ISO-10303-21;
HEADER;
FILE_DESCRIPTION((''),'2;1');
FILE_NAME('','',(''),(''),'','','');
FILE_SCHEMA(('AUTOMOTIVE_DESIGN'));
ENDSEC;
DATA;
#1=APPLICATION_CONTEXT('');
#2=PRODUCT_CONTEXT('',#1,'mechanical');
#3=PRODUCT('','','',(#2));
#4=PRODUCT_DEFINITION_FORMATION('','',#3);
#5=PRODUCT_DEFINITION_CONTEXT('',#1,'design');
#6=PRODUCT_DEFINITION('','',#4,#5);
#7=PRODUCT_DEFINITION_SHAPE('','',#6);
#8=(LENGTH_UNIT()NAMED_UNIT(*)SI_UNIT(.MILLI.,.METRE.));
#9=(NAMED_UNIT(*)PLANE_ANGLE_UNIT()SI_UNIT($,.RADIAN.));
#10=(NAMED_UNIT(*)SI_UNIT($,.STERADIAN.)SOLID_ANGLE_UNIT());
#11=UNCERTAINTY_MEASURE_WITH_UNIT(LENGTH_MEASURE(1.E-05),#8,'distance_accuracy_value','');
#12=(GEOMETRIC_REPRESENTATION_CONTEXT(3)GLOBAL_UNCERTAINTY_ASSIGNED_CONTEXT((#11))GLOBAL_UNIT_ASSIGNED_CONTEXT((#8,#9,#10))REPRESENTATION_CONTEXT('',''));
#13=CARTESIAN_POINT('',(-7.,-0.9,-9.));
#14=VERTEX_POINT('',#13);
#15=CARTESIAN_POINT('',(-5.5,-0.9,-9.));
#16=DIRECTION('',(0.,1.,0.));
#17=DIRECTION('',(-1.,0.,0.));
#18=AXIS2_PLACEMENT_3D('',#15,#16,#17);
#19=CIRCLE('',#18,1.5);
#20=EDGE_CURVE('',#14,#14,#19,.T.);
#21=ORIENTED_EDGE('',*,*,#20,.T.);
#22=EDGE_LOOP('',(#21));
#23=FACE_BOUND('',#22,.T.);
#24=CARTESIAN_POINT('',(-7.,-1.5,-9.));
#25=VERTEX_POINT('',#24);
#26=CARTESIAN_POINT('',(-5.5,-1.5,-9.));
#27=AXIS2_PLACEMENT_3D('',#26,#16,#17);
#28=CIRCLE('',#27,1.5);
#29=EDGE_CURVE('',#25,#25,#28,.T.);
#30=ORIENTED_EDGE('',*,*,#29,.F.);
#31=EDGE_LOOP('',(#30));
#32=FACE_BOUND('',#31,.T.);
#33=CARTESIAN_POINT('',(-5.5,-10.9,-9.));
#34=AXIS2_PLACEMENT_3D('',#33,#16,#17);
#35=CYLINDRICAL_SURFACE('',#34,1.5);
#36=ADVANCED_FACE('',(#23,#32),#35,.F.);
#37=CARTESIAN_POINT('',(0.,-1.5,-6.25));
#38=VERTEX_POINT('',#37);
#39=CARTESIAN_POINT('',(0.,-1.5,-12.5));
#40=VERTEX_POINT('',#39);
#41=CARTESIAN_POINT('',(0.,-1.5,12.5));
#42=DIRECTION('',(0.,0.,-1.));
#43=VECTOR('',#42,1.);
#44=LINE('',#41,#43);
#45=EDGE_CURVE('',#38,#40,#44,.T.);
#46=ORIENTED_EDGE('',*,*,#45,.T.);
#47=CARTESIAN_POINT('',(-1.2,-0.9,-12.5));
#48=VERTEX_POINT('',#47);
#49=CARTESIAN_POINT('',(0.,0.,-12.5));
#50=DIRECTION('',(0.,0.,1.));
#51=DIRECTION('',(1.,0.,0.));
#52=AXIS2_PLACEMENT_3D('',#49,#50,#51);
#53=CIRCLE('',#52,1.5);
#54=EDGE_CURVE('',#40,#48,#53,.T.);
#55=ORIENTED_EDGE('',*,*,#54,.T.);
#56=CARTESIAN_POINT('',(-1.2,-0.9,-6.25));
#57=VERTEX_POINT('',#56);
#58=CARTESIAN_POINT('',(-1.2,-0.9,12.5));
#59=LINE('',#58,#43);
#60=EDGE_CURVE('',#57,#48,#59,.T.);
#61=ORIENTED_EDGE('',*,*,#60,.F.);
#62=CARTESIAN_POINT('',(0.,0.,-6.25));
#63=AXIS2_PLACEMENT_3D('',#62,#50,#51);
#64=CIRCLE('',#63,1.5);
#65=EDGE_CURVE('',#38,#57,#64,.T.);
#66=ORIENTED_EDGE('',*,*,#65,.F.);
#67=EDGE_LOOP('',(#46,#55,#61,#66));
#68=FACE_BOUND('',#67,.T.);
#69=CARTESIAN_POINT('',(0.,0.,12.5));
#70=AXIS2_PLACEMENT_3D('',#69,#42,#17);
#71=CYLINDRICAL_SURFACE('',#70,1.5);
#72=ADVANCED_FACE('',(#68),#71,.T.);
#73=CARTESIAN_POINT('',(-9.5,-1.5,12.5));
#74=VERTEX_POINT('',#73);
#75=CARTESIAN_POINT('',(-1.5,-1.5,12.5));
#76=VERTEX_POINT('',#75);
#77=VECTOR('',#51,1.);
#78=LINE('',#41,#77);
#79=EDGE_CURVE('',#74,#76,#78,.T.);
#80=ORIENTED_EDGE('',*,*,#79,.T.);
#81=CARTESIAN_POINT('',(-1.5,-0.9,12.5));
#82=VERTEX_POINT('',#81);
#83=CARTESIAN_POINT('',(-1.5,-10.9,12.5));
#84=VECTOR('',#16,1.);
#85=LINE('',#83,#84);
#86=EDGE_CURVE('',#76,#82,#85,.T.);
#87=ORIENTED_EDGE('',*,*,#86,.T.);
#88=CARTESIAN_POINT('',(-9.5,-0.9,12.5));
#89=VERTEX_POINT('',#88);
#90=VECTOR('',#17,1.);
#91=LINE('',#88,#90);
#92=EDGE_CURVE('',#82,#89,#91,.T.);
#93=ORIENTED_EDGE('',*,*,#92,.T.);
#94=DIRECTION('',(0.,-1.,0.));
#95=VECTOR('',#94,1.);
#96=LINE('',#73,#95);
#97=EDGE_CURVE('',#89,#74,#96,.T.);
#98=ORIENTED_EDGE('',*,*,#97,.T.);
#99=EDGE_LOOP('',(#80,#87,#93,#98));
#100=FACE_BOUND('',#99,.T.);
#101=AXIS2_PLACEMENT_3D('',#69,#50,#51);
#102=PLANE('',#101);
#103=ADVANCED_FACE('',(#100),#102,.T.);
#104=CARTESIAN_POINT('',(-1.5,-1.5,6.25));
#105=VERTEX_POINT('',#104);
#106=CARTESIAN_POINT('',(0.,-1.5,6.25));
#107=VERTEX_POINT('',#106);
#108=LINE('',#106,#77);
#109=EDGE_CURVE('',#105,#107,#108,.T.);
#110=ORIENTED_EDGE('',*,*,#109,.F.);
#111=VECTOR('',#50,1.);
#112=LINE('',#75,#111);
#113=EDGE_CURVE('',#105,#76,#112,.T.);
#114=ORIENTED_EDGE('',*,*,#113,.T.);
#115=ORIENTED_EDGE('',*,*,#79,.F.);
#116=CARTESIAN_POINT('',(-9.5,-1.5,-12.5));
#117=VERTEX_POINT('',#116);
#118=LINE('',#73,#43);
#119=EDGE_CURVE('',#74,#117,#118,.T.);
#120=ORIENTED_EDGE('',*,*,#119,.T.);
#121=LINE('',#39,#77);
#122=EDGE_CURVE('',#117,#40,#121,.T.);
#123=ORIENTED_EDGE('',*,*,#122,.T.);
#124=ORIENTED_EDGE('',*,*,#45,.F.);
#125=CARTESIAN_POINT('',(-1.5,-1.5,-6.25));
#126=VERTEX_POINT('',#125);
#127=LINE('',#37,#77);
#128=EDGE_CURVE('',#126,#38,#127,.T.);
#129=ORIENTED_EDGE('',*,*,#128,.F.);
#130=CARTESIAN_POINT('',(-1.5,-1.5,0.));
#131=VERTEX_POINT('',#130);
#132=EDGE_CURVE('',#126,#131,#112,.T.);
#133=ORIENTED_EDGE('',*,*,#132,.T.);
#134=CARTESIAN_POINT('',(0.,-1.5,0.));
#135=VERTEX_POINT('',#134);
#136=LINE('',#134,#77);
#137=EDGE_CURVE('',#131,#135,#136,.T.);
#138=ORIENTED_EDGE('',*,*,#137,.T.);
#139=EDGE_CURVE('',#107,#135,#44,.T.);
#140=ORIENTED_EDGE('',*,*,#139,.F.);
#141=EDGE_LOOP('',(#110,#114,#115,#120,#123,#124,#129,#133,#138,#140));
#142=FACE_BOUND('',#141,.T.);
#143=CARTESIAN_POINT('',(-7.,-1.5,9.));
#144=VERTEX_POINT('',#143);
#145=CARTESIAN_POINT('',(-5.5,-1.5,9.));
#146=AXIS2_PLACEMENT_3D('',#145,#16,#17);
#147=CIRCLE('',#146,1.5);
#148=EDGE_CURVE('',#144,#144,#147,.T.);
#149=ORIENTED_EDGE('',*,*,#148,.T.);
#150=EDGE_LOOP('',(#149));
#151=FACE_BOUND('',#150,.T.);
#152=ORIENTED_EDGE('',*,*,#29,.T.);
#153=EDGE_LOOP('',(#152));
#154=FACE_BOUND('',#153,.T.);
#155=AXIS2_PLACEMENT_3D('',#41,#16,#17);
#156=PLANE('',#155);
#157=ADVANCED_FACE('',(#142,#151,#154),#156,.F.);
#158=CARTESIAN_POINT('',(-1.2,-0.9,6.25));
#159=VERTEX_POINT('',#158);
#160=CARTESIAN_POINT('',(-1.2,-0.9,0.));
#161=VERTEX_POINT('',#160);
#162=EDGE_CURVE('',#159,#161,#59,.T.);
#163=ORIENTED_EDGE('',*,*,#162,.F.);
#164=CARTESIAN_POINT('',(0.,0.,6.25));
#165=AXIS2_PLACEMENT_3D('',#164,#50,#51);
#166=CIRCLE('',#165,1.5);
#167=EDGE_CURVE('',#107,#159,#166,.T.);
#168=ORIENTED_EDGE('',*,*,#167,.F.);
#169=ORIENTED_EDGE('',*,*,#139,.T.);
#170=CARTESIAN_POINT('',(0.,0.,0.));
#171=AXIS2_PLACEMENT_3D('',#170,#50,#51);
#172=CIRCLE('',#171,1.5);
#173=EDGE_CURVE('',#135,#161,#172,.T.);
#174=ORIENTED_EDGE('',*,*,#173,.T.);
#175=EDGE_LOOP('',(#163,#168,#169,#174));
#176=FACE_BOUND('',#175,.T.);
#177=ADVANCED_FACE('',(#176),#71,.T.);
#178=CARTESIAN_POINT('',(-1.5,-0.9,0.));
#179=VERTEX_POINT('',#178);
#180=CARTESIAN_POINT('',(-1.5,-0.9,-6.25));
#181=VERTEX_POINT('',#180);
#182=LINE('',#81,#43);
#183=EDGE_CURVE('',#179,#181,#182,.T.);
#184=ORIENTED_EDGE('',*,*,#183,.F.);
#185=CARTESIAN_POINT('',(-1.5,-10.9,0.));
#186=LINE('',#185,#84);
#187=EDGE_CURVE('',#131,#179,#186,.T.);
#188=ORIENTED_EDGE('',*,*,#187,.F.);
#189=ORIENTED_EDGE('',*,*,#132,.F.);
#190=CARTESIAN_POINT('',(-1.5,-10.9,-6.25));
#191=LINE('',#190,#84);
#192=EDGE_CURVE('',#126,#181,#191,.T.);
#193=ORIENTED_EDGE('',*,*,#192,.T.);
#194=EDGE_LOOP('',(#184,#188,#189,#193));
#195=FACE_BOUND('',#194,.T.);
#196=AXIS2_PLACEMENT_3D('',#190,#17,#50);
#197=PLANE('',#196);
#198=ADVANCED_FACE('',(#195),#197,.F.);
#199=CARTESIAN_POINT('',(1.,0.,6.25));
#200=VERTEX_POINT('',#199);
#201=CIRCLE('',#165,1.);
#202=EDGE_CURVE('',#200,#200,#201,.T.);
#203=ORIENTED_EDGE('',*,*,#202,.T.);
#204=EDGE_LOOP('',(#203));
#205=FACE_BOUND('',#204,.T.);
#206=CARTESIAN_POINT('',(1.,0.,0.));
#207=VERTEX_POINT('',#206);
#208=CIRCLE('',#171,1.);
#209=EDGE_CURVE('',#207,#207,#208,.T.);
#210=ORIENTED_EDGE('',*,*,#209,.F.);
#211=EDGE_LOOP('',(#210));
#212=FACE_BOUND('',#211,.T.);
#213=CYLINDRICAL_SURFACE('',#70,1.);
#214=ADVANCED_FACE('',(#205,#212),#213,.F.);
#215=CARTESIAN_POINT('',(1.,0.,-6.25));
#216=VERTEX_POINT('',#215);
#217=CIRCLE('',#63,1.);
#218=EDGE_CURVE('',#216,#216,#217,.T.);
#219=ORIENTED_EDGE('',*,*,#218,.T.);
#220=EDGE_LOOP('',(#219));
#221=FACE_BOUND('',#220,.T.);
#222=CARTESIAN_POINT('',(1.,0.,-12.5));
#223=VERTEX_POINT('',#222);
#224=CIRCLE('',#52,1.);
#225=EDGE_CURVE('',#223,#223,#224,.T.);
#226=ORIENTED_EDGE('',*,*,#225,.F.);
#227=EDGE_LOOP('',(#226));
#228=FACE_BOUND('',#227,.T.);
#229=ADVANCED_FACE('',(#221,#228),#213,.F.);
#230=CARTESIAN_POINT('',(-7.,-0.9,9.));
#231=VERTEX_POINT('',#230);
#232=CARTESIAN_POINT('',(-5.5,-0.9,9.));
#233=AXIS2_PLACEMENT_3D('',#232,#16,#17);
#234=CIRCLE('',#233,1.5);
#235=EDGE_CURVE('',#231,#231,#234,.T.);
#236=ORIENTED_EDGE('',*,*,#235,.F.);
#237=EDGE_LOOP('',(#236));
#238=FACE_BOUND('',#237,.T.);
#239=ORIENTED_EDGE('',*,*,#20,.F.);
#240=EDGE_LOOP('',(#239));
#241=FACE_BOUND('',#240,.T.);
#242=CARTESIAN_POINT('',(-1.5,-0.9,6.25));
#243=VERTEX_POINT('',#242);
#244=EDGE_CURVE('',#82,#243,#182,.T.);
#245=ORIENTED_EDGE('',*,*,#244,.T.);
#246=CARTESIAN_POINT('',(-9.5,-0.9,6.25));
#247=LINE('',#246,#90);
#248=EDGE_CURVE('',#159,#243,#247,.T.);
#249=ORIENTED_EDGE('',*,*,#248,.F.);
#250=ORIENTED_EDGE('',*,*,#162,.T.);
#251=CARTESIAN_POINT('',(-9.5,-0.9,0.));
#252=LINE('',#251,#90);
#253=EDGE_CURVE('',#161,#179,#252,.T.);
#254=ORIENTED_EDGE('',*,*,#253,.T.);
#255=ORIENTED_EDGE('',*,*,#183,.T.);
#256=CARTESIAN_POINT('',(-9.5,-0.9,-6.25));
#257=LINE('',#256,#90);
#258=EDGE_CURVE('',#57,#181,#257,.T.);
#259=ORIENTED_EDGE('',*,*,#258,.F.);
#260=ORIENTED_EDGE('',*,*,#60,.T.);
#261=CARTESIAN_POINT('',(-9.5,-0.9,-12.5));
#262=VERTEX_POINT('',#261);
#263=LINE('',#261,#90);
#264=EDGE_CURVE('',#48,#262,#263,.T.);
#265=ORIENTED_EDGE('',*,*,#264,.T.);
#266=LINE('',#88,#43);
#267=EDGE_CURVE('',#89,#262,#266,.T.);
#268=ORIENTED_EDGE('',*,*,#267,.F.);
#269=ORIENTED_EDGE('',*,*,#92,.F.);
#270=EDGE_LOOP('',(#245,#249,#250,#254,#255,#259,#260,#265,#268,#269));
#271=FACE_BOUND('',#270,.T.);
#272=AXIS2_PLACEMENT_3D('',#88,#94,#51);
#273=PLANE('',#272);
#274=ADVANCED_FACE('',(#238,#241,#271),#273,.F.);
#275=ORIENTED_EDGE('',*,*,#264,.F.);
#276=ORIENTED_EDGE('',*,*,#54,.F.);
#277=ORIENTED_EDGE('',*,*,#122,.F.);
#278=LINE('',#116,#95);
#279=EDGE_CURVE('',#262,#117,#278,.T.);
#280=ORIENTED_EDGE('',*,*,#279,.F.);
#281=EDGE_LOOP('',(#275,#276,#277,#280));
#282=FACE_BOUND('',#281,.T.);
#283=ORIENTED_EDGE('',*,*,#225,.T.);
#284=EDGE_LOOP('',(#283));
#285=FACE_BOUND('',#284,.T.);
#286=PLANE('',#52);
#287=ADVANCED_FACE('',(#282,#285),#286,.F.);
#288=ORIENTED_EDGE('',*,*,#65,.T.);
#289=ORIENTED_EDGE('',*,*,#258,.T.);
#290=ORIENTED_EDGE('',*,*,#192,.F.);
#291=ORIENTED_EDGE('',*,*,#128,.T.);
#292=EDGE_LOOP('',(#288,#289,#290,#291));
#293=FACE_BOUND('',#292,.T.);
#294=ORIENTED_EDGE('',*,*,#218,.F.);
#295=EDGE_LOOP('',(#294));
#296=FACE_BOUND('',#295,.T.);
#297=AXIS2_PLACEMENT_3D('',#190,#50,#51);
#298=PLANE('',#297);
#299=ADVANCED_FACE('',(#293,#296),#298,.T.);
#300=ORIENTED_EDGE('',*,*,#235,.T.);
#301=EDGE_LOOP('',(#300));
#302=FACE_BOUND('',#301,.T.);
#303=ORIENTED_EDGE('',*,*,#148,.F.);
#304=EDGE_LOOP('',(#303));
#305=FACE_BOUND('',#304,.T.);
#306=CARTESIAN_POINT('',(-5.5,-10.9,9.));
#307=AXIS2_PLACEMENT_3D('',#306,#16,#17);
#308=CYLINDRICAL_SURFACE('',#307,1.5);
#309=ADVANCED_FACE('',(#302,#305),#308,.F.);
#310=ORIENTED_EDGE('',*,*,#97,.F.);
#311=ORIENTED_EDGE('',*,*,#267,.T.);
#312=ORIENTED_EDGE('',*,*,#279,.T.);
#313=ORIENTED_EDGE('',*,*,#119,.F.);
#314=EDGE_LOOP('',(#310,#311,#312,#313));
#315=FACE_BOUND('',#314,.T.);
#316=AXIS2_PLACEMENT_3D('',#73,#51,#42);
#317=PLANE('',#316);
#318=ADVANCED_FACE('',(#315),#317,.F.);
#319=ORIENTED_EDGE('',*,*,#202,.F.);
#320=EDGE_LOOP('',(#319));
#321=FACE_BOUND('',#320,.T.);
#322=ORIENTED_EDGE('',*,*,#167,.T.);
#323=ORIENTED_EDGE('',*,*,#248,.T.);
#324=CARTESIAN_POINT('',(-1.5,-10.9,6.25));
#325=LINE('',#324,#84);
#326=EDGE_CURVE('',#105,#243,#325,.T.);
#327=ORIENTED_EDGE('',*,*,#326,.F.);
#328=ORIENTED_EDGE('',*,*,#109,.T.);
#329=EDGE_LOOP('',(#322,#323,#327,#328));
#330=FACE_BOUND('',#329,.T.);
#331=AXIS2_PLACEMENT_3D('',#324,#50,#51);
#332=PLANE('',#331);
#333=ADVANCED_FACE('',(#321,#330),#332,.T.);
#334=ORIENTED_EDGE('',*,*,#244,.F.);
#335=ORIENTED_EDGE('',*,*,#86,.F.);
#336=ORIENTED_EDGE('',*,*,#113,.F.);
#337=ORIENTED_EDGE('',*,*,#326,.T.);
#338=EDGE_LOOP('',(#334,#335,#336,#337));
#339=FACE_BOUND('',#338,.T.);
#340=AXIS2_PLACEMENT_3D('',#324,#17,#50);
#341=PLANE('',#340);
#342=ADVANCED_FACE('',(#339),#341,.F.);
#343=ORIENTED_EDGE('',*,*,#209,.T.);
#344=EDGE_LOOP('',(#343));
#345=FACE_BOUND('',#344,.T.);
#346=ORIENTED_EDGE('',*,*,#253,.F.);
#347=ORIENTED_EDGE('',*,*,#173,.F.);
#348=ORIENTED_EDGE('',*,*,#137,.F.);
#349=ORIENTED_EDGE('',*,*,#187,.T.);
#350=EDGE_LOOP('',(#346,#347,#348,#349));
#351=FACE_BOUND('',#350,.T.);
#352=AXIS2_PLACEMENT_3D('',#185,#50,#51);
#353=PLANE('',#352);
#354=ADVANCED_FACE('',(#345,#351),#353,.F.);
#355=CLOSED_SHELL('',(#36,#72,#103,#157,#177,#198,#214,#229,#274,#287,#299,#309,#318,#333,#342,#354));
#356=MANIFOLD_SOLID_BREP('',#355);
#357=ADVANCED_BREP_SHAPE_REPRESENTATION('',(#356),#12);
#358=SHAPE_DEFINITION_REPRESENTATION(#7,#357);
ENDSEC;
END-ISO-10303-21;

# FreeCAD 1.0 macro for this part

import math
import FreeCAD as App
import Part
import Sketcher
from FreeCAD import Vector

doc = App.newDocument("Part")
body = doc.addObject("PartDesign::Body", "Body")

# Sketch on XY plane
sketch1 = body.newObject("Sketcher::SketchObject", "Sketch")
sketch1.AttachmentSupport = (doc.getObject("XY_Plane"), [""])
sketch1.MapMode = "FlatFace"
sketch1.addGeometry([
    Part.LineSegment(Vector(-9.5, -1.5, 0), Vector(0, -1.5, 0)),  # 0
    Part.ArcOfCircle(Part.Circle(Vector(0, 0, 0), Vector(0, 0, 1), 1.5), math.radians(-90), math.radians(217)),  # 1
    Part.LineSegment(Vector(-1.2, -0.9, 0), Vector(-9.5, -0.9, 0)),  # 2
    Part.LineSegment(Vector(-9.5, -0.9, 0), Vector(-9.5, -1.5, 0)),  # 3
    Part.Circle(Vector(0, 0, 0), Vector(0, 0, 1), 1),  # 4
], False)
sketch1.addConstraint([
    Sketcher.Constraint("Tangent", 0, 2, 1, 1),
    Sketcher.Constraint("Coincident", 1, 2, 2, 1),
    Sketcher.Constraint("Coincident", 2, 2, 3, 1),
    Sketcher.Constraint("Coincident", 3, 2, 0, 1),
    Sketcher.Constraint("Horizontal", 0),
    Sketcher.Constraint("Horizontal", 2),
    Sketcher.Constraint("Vertical", 3),
    Sketcher.Constraint("Coincident", 1, 3, -1, 1),
    Sketcher.Constraint("Coincident", 4, 3, -1, 1),
    Sketcher.Constraint("Diameter", 4, 2.0),
    Sketcher.Constraint("Radius", 1, 1.5),
    Sketcher.Constraint("DistanceX", 0, 1, 0, 2, 9.5),
    Sketcher.Constraint("DistanceX", 2, 2, 2, 1, 8.3),
])
pad1 = body.newObject("PartDesign::Pad", "Pad")
pad1.Profile = sketch1
pad1.Length = 25
pad1.Midplane = True

# Sketch on XZ plane
sketch2 = body.newObject("Sketcher::SketchObject", "Sketch001")
sketch2.AttachmentSupport = (doc.getObject("XZ_Plane"), [""])
sketch2.MapMode = "FlatFace"
sketch2.AttachmentOffset = App.Placement(Vector(0, 0, 0.9), App.Rotation())
sketch2.addGeometry([
    Part.LineSegment(Vector(-1.5, -6.2, 0), Vector(-1.5, 0, 0)),  # 0
    Part.LineSegment(Vector(-1.5, 0, 0), Vector(2.6, 0, 0)),  # 1
    Part.LineSegment(Vector(2.6, 0, 0), Vector(2.6, -6.2, 0)),  # 2
    Part.LineSegment(Vector(2.6, -6.2, 0), Vector(-1.5, -6.2, 0)),  # 3
    Part.LineSegment(Vector(-1.5, 6.2, 0), Vector(-1.5, 12.5, 0)),  # 4
    Part.LineSegment(Vector(-1.5, 12.5, 0), Vector(3.2, 12.5, 0)),  # 5
    Part.LineSegment(Vector(3.2, 12.5, 0), Vector(3.2, 6.2, 0)),  # 6
    Part.LineSegment(Vector(3.2, 6.2, 0), Vector(-1.5, 6.2, 0)),  # 7
], False)
sketch2.addConstraint([
    Sketcher.Constraint("Coincident", 0, 2, 1, 1),
    Sketcher.Constraint("Coincident", 1, 2, 2, 1),
    Sketcher.Constraint("Coincident", 2, 2, 3, 1),
    Sketcher.Constraint("Coincident", 3, 2, 0, 1),
    Sketcher.Constraint("Coincident", 4, 2, 5, 1),
    Sketcher.Constraint("Coincident", 5, 2, 6, 1),
    Sketcher.Constraint("Coincident", 6, 2, 7, 1),
    Sketcher.Constraint("Coincident", 7, 2, 4, 1),
    Sketcher.Constraint("Vertical", 0),
    Sketcher.Constraint("Horizontal", 1),
    Sketcher.Constraint("Vertical", 2),
    Sketcher.Constraint("Horizontal", 3),
    Sketcher.Constraint("Vertical", 4),
    Sketcher.Constraint("Horizontal", 5),
    Sketcher.Constraint("Vertical", 6),
    Sketcher.Constraint("Horizontal", 7),
    Sketcher.Constraint("Symmetric", 3, 2, 7, 2, -1),
    Sketcher.Constraint("PointOnObject", 0, 2, -1),
    Sketcher.Constraint("Equal", 2, 4),
    Sketcher.Constraint("DistanceY", 0, 1, 0, 2, 6.25),
    Sketcher.Constraint("DistanceX", 0, 2, -1, 1, 1.5),
    Sketcher.Constraint("DistanceX", 5, 1, 5, 2, 4.685981),
    Sketcher.Constraint("DistanceX", 1, 1, 1, 2, 4.099886),
])
pocket1 = body.newObject("PartDesign::Pocket", "Pocket")
pocket1.Profile = sketch2
pocket1.Length = 20
pocket1.Midplane = True

# Sketch on XZ plane
sketch3 = body.newObject("Sketcher::SketchObject", "Sketch002")
sketch3.AttachmentSupport = (doc.getObject("XZ_Plane"), [""])
sketch3.MapMode = "FlatFace"
sketch3.AttachmentOffset = App.Placement(Vector(0, 0, 0.9), App.Rotation())
sketch3.addGeometry([
    Part.Circle(Vector(-5.5, -9, 0), Vector(0, 0, 1), 1.5),
    Part.Circle(Vector(-5.5, 9, 0), Vector(0, 0, 1), 1.5),
], False)
sketch3.addConstraint([
    Sketcher.Constraint("Equal", 0, 1),
    Sketcher.Constraint("Symmetric", 0, 3, 1, 3, -1),
    Sketcher.Constraint("Diameter", 0, 3.0),
    Sketcher.Constraint("DistanceY", 0, 3, -1, 1, 9.0),
    Sketcher.Constraint("DistanceX", 0, 3, -1, 1, 5.5),
])
pocket2 = body.newObject("PartDesign::Pocket", "Pocket001")
pocket2.Profile = sketch3
pocket2.Length = 10
pocket2.Reversed = True

doc.recompute()
